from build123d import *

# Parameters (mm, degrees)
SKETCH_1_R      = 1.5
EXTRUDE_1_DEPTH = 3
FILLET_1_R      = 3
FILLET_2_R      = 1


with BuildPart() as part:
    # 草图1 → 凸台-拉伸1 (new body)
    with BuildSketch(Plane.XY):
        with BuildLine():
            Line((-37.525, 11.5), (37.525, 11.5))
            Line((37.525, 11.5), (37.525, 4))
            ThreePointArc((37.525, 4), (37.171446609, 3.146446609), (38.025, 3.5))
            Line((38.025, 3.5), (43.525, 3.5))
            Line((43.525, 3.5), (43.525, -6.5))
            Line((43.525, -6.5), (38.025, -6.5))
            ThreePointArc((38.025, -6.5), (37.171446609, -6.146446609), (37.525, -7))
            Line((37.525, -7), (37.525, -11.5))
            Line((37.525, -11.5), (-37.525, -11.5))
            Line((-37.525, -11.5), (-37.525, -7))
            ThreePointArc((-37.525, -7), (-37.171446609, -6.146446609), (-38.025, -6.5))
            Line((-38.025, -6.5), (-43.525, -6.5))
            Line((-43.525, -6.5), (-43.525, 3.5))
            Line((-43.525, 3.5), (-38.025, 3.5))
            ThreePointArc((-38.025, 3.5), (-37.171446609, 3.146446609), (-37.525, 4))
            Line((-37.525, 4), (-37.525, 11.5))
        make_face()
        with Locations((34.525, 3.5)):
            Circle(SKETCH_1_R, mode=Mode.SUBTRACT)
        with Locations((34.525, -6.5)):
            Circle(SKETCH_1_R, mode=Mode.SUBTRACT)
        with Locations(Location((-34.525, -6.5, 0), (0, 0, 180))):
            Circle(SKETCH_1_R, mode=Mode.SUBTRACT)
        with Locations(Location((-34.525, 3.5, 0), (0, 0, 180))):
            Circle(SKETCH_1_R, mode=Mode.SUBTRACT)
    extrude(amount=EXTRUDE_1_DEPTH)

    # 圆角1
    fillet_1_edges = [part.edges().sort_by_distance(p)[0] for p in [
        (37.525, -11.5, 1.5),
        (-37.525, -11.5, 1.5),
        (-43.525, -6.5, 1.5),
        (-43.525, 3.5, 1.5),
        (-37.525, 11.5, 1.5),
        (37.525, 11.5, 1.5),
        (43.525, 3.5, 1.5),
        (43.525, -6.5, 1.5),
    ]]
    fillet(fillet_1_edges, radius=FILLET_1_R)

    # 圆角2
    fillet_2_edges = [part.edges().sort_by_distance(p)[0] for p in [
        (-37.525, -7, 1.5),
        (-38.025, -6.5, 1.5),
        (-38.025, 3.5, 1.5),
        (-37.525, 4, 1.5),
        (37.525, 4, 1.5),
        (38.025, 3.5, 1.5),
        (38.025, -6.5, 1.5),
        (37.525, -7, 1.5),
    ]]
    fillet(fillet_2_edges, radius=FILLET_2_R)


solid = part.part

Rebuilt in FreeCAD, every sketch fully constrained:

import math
import FreeCAD as App
import Part
import Sketcher


def edges_at(feature, points):
    """Names of the edges that pass closest to the given points."""
    edges = feature.Shape.Edges
    near = lambda p: min(range(len(edges)), key=lambda i: edges[i].distToShape(Part.Vertex(*p))[0])
    return sorted({f"Edge{near(p) + 1}" for p in points})

doc = App.newDocument("Part")
params = doc.addObject("Spreadsheet::Sheet", "Params")
for row, (alias, value) in enumerate([
    ("sketch1_diameter", "3 mm"),
    ("sketch1_radius", "0.5 mm"),
    ("sketch1_height", "10 mm"),
    ("sketch1_width", "5.5 mm"),
    ("sketch1_height2", "7.5 mm"),
    ("pad1_length", "3 mm"),
    ("fillet_radius", "3 mm"),
    ("fillet2_radius", "1 mm"),
], start=1):
    params.set(f"A{row}", alias)
    params.set(f"B{row}", "=" + value)
    params.setAlias(f"B{row}", alias)

body = doc.addObject("PartDesign::Body", "Body")

# Sketch on XY plane
sketch1 = body.newObject("Sketcher::SketchObject", "Sketch")
sketch1.AttachmentSupport = (doc.getObject("XY_Plane"), [""])
sketch1.MapMode = "FlatFace"
sketch1.addGeometry(Part.LineSegment(App.Vector(37.5, 11.5, 0), App.Vector(-37.5, 11.5, 0)), False)
sketch1.addGeometry(Part.LineSegment(App.Vector(-37.5, 11.5, 0), App.Vector(-37.5, 4, 0)), False)
sketch1.addGeometry(Part.ArcOfCircle(Part.Circle(App.Vector(-37.5, 3.5, 0), App.Vector(0, 0, 1), 0.5), math.radians(180), math.radians(450)), False)
sketch1.addGeometry(Part.LineSegment(App.Vector(-38, 3.5, 0), App.Vector(-43.5, 3.5, 0)), False)
sketch1.addGeometry(Part.LineSegment(App.Vector(-43.5, 3.5, 0), App.Vector(-43.5, -6.5, 0)), False)
sketch1.addGeometry(Part.LineSegment(App.Vector(-43.5, -6.5, 0), App.Vector(-38, -6.5, 0)), False)
sketch1.addGeometry(Part.ArcOfCircle(Part.Circle(App.Vector(-37.5, -6.5, 0), App.Vector(0, 0, 1), 0.5), math.radians(-90), math.radians(180)), False)
sketch1.addGeometry(Part.LineSegment(App.Vector(-37.5, -7, 0), App.Vector(-37.5, -11.5, 0)), False)
sketch1.addGeometry(Part.LineSegment(App.Vector(-37.5, -11.5, 0), App.Vector(37.5, -11.5, 0)), False)
sketch1.addGeometry(Part.LineSegment(App.Vector(37.5, -11.5, 0), App.Vector(37.5, -7, 0)), False)
sketch1.addGeometry(Part.ArcOfCircle(Part.Circle(App.Vector(37.5, -6.5, 0), App.Vector(0, 0, 1), 0.5), math.radians(0), math.radians(270)), False)
sketch1.addGeometry(Part.LineSegment(App.Vector(38, -6.5, 0), App.Vector(43.5, -6.5, 0)), False)
sketch1.addGeometry(Part.LineSegment(App.Vector(43.5, -6.5, 0), App.Vector(43.5, 3.5, 0)), False)
sketch1.addGeometry(Part.LineSegment(App.Vector(43.5, 3.5, 0), App.Vector(38, 3.5, 0)), False)
sketch1.addGeometry(Part.ArcOfCircle(Part.Circle(App.Vector(37.5, 3.5, 0), App.Vector(0, 0, 1), 0.5), math.radians(90), math.radians(360)), False)
sketch1.addGeometry(Part.LineSegment(App.Vector(37.5, 4, 0), App.Vector(37.5, 11.5, 0)), False)
sketch1.addGeometry(Part.Circle(App.Vector(34.5, -6.5, 0), App.Vector(0, 0, 1), 1.5), False)
sketch1.addGeometry(Part.Circle(App.Vector(-34.5, -6.5, 0), App.Vector(0, 0, 1), 1.5), False)
sketch1.addGeometry(Part.Circle(App.Vector(34.5, 3.5, 0), App.Vector(0, 0, 1), 1.5), False)
sketch1.addGeometry(Part.Circle(App.Vector(-34.5, 3.5, 0), App.Vector(0, 0, 1), 1.5), False)
sketch1.addConstraint(Sketcher.Constraint("Coincident", 0, 2, 1, 1))
sketch1.addConstraint(Sketcher.Constraint("Coincident", 1, 2, 2, 2))
sketch1.addConstraint(Sketcher.Constraint("Coincident", 2, 1, 3, 1))
sketch1.addConstraint(Sketcher.Constraint("Coincident", 3, 2, 4, 1))
sketch1.addConstraint(Sketcher.Constraint("Coincident", 4, 2, 5, 1))
sketch1.addConstraint(Sketcher.Constraint("Coincident", 5, 2, 6, 2))
sketch1.addConstraint(Sketcher.Constraint("Coincident", 6, 1, 7, 1))
sketch1.addConstraint(Sketcher.Constraint("Coincident", 7, 2, 8, 1))
sketch1.addConstraint(Sketcher.Constraint("Coincident", 8, 2, 9, 1))
sketch1.addConstraint(Sketcher.Constraint("Coincident", 9, 2, 10, 2))
sketch1.addConstraint(Sketcher.Constraint("Coincident", 10, 1, 11, 1))
sketch1.addConstraint(Sketcher.Constraint("Coincident", 11, 2, 12, 1))
sketch1.addConstraint(Sketcher.Constraint("Coincident", 12, 2, 13, 1))
sketch1.addConstraint(Sketcher.Constraint("Coincident", 13, 2, 14, 2))
sketch1.addConstraint(Sketcher.Constraint("Coincident", 14, 1, 15, 1))
sketch1.addConstraint(Sketcher.Constraint("Coincident", 15, 2, 0, 1))
sketch1.addConstraint(Sketcher.Constraint("Horizontal", 0))
sketch1.addConstraint(Sketcher.Constraint("Vertical", 1))
sketch1.addConstraint(Sketcher.Constraint("Horizontal", 3))
sketch1.addConstraint(Sketcher.Constraint("Vertical", 4))
sketch1.addConstraint(Sketcher.Constraint("Horizontal", 5))
sketch1.addConstraint(Sketcher.Constraint("Vertical", 7))
sketch1.addConstraint(Sketcher.Constraint("Horizontal", 8))
sketch1.addConstraint(Sketcher.Constraint("Vertical", 9))
sketch1.addConstraint(Sketcher.Constraint("Horizontal", 11))
sketch1.addConstraint(Sketcher.Constraint("Vertical", 12))
sketch1.addConstraint(Sketcher.Constraint("Horizontal", 13))
sketch1.addConstraint(Sketcher.Constraint("Vertical", 15))
sketch1.addConstraint(Sketcher.Constraint("Equal", 2, 6))
sketch1.addConstraint(Sketcher.Constraint("Equal", 6, 10))
sketch1.addConstraint(Sketcher.Constraint("Equal", 10, 14))
sketch1.addConstraint(Sketcher.Constraint("Equal", 16, 17))
sketch1.addConstraint(Sketcher.Constraint("Equal", 17, 18))
sketch1.addConstraint(Sketcher.Constraint("Equal", 18, 19))
sketch1.addConstraint(Sketcher.Constraint("Symmetric", 0, 2, 8, 2, -1, 1))
sketch1.addConstraint(Sketcher.Constraint("Symmetric", 6, 3, 10, 3, -2))
sketch1.addConstraint(Sketcher.Constraint("Symmetric", 2, 3, 14, 3, -2))
sketch1.addConstraint(Sketcher.Constraint("Symmetric", 16, 3, 17, 3, -2))
sketch1.addConstraint(Sketcher.Constraint("Symmetric", 18, 3, 19, 3, -2))
sketch1.addConstraint(Sketcher.Constraint("Symmetric", 4, 2, 11, 2, -2))
sketch1.addConstraint(Sketcher.Constraint("Horizontal", 10, 3, 16, 3))
sketch1.addConstraint(Sketcher.Constraint("Horizontal", 14, 3, 18, 3))
sketch1.addConstraint(Sketcher.Constraint("Horizontal", 19, 3, 2, 1))
sketch1.addConstraint(Sketcher.Constraint("Horizontal", 17, 3, 4, 2))
sketch1.addConstraint(Sketcher.Constraint("Horizontal", 3, 2, 12, 2))
sketch1.addConstraint(Sketcher.Constraint("Vertical", 2, 3, 6, 3))
sketch1.addConstraint(Sketcher.Constraint("Vertical", 16, 3, 18, 3))
sketch1.addConstraint(Sketcher.Constraint("Vertical", 6, 3, 0, 2))
sketch1.addConstraint(Sketcher.Constraint("Vertical", 1, 2, 6, 1))
sketch1.addConstraint(Sketcher.Constraint("Vertical", 9, 2, 14, 1))
sketch1.addConstraint(Sketcher.Constraint("Diameter", 16, 3.0))
sketch1.addConstraint(Sketcher.Constraint("Radius", 2, 0.5))
sketch1.addConstraint(Sketcher.Constraint("DistanceY", 4, 2, 4, 1, 10.0))
sketch1.addConstraint(Sketcher.Constraint("DistanceX", 3, 2, 3, 1, 5.5))
sketch1.addConstraint(Sketcher.Constraint("DistanceY", 1, 2, 1, 1, 7.5))
sketch1.addConstraint(Sketcher.Constraint("DistanceY", 7, 2, 7, 1, 4.5))
sketch1.addConstraint(Sketcher.Constraint("DistanceX", 16, 3, 10, 3, 3.0))
sketch1.addConstraint(Sketcher.Constraint("DistanceX", 0, 2, 0, 1, 75.05))
sketch1.setExpression("Constraints[50]", "Params.sketch1_diameter")
sketch1.setExpression("Constraints[51]", "Params.sketch1_radius")
sketch1.setExpression("Constraints[52]", "Params.sketch1_height")
sketch1.setExpression("Constraints[53]", "Params.sketch1_width")
sketch1.setExpression("Constraints[54]", "Params.sketch1_height2")
pad1 = body.newObject("PartDesign::Pad", "Pad")
pad1.Profile = sketch1
pad1.setExpression("Length", "Params.pad1_length")
doc.recompute()

fillet = body.newObject("PartDesign::Fillet", "Fillet")
fillet.Base = (pad1, edges_at(pad1, [
    (37.525, -11.5, 1.5),
    (-37.525, -11.5, 1.5),
    (-43.525, -6.5, 1.5),
    (-43.525, 3.5, 1.5),
    (-37.525, 11.5, 1.5),
    (37.525, 11.5, 1.5),
    (43.525, 3.5, 1.5),
    (43.525, -6.5, 1.5),
]))
fillet.setExpression("Radius", "Params.fillet_radius")
doc.recompute()

fillet2 = body.newObject("PartDesign::Fillet", "Fillet001")
fillet2.Base = (fillet, edges_at(fillet, [
    (-37.525, -7, 1.5),
    (-38.025, -6.5, 1.5),
    (-38.025, 3.5, 1.5),
    (-37.525, 4, 1.5),
    (37.525, 4, 1.5),
    (38.025, 3.5, 1.5),
    (38.025, -6.5, 1.5),
    (37.525, -7, 1.5),
]))
fillet2.setExpression("Radius", "Params.fillet2_radius")

doc.recompute()
